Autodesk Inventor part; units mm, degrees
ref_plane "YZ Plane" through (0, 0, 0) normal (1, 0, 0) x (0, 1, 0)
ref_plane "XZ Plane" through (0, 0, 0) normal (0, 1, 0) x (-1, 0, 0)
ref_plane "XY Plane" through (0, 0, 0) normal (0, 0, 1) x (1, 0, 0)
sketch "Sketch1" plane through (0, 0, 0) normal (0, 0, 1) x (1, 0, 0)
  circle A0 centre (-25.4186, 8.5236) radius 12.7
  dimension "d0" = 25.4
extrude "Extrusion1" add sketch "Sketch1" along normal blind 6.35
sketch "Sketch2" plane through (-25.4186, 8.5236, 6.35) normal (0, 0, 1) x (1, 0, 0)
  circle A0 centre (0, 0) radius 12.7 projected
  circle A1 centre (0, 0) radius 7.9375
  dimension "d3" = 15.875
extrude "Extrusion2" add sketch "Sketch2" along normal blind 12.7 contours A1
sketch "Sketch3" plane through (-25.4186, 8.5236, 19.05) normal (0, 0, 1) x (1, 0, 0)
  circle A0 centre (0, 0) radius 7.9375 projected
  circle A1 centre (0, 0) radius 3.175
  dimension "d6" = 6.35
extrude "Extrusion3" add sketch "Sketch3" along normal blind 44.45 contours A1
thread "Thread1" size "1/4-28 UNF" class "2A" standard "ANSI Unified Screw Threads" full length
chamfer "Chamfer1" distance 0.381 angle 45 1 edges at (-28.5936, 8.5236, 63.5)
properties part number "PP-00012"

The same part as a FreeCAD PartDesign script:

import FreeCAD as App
import Part
import Sketcher
Q = App.Units.Quantity


def edges_at(feature, points):
    """Names of the edges that pass closest to the given points."""
    edges = feature.Shape.Edges
    near = lambda p: min(range(len(edges)), key=lambda i: edges[i].distToShape(Part.Vertex(*p))[0])
    return sorted({f"Edge{near(p) + 1}" for p in points})

doc = App.newDocument("Part")
body = doc.addObject("PartDesign::Body", "Body")

sketch1 = doc.addObject("Sketcher::SketchObject", "Sketch")
body.addObject(sketch1)
sketch1.AttachmentSupport = (doc.XY_Plane, [""])
sketch1.MapMode = "FlatFace"
sketch1.addGeometry(Part.Circle(App.Vector(-25, 9, 0), App.Vector(0, 0, 1), 13), False)
sketch1.addConstraint([
    Sketcher.Constraint("Diameter", 0, Q("1 in")),
    Sketcher.Constraint("DistanceX", 0, 3, -1, 1, 25.4186),
    Sketcher.Constraint("DistanceY", -1, 1, 0, 3, 8.5236),
])
pad1 = doc.addObject("PartDesign::Pad", "Pad")
body.addObject(pad1)
pad1.Profile = sketch1
pad1.Length = Q("0.25 in")

sketch2 = doc.addObject("Sketcher::SketchObject", "Sketch001")
body.addObject(sketch2)
sketch2.AttachmentSupport = (doc.XY_Plane, [""])
sketch2.MapMode = "FlatFace"
sketch2.AttachmentOffset = App.Placement(App.Vector(0, 0, 0.25 * 25.4), App.Rotation())
sketch2.addGeometry(Part.Circle(App.Vector(-25, 9, 0), App.Vector(0, 0, 1), 8), False)
sketch2.addConstraint([
    Sketcher.Constraint("Diameter", 0, Q("0.625 in")),
    Sketcher.Constraint("DistanceX", 0, 3, -1, 1, 25.4186),
    Sketcher.Constraint("DistanceY", -1, 1, 0, 3, 8.5236),
])
pad2 = doc.addObject("PartDesign::Pad", "Pad001")
body.addObject(pad2)
pad2.Profile = sketch2
pad2.Length = Q("0.5 in")

sketch3 = doc.addObject("Sketcher::SketchObject", "Sketch002")
body.addObject(sketch3)
sketch3.AttachmentSupport = (doc.XY_Plane, [""])
sketch3.MapMode = "FlatFace"
sketch3.AttachmentOffset = App.Placement(App.Vector(0, 0, 0.75 * 25.4), App.Rotation())
sketch3.addGeometry(Part.Circle(App.Vector(-25.4, 8.5, 0), App.Vector(0, 0, 1), 3.2), False)
sketch3.addConstraint([
    Sketcher.Constraint("Diameter", 0, Q("0.25 in")),
    Sketcher.Constraint("DistanceX", 0, 3, -1, 1, 25.4186),
    Sketcher.Constraint("DistanceY", -1, 1, 0, 3, 8.5236),
])
pad3 = doc.addObject("PartDesign::Pad", "Pad002")
body.addObject(pad3)
pad3.Profile = sketch3
pad3.Length = Q("1.75 in")
doc.recompute()

chamfer = doc.addObject("PartDesign::Chamfer", "Chamfer")
body.addObject(chamfer)
chamfer.Base = (pad3, edges_at(pad3, [(-28.594, 8.524, 63.5)]))
chamfer.Size = Q("0.015 in")

doc.recompute()
